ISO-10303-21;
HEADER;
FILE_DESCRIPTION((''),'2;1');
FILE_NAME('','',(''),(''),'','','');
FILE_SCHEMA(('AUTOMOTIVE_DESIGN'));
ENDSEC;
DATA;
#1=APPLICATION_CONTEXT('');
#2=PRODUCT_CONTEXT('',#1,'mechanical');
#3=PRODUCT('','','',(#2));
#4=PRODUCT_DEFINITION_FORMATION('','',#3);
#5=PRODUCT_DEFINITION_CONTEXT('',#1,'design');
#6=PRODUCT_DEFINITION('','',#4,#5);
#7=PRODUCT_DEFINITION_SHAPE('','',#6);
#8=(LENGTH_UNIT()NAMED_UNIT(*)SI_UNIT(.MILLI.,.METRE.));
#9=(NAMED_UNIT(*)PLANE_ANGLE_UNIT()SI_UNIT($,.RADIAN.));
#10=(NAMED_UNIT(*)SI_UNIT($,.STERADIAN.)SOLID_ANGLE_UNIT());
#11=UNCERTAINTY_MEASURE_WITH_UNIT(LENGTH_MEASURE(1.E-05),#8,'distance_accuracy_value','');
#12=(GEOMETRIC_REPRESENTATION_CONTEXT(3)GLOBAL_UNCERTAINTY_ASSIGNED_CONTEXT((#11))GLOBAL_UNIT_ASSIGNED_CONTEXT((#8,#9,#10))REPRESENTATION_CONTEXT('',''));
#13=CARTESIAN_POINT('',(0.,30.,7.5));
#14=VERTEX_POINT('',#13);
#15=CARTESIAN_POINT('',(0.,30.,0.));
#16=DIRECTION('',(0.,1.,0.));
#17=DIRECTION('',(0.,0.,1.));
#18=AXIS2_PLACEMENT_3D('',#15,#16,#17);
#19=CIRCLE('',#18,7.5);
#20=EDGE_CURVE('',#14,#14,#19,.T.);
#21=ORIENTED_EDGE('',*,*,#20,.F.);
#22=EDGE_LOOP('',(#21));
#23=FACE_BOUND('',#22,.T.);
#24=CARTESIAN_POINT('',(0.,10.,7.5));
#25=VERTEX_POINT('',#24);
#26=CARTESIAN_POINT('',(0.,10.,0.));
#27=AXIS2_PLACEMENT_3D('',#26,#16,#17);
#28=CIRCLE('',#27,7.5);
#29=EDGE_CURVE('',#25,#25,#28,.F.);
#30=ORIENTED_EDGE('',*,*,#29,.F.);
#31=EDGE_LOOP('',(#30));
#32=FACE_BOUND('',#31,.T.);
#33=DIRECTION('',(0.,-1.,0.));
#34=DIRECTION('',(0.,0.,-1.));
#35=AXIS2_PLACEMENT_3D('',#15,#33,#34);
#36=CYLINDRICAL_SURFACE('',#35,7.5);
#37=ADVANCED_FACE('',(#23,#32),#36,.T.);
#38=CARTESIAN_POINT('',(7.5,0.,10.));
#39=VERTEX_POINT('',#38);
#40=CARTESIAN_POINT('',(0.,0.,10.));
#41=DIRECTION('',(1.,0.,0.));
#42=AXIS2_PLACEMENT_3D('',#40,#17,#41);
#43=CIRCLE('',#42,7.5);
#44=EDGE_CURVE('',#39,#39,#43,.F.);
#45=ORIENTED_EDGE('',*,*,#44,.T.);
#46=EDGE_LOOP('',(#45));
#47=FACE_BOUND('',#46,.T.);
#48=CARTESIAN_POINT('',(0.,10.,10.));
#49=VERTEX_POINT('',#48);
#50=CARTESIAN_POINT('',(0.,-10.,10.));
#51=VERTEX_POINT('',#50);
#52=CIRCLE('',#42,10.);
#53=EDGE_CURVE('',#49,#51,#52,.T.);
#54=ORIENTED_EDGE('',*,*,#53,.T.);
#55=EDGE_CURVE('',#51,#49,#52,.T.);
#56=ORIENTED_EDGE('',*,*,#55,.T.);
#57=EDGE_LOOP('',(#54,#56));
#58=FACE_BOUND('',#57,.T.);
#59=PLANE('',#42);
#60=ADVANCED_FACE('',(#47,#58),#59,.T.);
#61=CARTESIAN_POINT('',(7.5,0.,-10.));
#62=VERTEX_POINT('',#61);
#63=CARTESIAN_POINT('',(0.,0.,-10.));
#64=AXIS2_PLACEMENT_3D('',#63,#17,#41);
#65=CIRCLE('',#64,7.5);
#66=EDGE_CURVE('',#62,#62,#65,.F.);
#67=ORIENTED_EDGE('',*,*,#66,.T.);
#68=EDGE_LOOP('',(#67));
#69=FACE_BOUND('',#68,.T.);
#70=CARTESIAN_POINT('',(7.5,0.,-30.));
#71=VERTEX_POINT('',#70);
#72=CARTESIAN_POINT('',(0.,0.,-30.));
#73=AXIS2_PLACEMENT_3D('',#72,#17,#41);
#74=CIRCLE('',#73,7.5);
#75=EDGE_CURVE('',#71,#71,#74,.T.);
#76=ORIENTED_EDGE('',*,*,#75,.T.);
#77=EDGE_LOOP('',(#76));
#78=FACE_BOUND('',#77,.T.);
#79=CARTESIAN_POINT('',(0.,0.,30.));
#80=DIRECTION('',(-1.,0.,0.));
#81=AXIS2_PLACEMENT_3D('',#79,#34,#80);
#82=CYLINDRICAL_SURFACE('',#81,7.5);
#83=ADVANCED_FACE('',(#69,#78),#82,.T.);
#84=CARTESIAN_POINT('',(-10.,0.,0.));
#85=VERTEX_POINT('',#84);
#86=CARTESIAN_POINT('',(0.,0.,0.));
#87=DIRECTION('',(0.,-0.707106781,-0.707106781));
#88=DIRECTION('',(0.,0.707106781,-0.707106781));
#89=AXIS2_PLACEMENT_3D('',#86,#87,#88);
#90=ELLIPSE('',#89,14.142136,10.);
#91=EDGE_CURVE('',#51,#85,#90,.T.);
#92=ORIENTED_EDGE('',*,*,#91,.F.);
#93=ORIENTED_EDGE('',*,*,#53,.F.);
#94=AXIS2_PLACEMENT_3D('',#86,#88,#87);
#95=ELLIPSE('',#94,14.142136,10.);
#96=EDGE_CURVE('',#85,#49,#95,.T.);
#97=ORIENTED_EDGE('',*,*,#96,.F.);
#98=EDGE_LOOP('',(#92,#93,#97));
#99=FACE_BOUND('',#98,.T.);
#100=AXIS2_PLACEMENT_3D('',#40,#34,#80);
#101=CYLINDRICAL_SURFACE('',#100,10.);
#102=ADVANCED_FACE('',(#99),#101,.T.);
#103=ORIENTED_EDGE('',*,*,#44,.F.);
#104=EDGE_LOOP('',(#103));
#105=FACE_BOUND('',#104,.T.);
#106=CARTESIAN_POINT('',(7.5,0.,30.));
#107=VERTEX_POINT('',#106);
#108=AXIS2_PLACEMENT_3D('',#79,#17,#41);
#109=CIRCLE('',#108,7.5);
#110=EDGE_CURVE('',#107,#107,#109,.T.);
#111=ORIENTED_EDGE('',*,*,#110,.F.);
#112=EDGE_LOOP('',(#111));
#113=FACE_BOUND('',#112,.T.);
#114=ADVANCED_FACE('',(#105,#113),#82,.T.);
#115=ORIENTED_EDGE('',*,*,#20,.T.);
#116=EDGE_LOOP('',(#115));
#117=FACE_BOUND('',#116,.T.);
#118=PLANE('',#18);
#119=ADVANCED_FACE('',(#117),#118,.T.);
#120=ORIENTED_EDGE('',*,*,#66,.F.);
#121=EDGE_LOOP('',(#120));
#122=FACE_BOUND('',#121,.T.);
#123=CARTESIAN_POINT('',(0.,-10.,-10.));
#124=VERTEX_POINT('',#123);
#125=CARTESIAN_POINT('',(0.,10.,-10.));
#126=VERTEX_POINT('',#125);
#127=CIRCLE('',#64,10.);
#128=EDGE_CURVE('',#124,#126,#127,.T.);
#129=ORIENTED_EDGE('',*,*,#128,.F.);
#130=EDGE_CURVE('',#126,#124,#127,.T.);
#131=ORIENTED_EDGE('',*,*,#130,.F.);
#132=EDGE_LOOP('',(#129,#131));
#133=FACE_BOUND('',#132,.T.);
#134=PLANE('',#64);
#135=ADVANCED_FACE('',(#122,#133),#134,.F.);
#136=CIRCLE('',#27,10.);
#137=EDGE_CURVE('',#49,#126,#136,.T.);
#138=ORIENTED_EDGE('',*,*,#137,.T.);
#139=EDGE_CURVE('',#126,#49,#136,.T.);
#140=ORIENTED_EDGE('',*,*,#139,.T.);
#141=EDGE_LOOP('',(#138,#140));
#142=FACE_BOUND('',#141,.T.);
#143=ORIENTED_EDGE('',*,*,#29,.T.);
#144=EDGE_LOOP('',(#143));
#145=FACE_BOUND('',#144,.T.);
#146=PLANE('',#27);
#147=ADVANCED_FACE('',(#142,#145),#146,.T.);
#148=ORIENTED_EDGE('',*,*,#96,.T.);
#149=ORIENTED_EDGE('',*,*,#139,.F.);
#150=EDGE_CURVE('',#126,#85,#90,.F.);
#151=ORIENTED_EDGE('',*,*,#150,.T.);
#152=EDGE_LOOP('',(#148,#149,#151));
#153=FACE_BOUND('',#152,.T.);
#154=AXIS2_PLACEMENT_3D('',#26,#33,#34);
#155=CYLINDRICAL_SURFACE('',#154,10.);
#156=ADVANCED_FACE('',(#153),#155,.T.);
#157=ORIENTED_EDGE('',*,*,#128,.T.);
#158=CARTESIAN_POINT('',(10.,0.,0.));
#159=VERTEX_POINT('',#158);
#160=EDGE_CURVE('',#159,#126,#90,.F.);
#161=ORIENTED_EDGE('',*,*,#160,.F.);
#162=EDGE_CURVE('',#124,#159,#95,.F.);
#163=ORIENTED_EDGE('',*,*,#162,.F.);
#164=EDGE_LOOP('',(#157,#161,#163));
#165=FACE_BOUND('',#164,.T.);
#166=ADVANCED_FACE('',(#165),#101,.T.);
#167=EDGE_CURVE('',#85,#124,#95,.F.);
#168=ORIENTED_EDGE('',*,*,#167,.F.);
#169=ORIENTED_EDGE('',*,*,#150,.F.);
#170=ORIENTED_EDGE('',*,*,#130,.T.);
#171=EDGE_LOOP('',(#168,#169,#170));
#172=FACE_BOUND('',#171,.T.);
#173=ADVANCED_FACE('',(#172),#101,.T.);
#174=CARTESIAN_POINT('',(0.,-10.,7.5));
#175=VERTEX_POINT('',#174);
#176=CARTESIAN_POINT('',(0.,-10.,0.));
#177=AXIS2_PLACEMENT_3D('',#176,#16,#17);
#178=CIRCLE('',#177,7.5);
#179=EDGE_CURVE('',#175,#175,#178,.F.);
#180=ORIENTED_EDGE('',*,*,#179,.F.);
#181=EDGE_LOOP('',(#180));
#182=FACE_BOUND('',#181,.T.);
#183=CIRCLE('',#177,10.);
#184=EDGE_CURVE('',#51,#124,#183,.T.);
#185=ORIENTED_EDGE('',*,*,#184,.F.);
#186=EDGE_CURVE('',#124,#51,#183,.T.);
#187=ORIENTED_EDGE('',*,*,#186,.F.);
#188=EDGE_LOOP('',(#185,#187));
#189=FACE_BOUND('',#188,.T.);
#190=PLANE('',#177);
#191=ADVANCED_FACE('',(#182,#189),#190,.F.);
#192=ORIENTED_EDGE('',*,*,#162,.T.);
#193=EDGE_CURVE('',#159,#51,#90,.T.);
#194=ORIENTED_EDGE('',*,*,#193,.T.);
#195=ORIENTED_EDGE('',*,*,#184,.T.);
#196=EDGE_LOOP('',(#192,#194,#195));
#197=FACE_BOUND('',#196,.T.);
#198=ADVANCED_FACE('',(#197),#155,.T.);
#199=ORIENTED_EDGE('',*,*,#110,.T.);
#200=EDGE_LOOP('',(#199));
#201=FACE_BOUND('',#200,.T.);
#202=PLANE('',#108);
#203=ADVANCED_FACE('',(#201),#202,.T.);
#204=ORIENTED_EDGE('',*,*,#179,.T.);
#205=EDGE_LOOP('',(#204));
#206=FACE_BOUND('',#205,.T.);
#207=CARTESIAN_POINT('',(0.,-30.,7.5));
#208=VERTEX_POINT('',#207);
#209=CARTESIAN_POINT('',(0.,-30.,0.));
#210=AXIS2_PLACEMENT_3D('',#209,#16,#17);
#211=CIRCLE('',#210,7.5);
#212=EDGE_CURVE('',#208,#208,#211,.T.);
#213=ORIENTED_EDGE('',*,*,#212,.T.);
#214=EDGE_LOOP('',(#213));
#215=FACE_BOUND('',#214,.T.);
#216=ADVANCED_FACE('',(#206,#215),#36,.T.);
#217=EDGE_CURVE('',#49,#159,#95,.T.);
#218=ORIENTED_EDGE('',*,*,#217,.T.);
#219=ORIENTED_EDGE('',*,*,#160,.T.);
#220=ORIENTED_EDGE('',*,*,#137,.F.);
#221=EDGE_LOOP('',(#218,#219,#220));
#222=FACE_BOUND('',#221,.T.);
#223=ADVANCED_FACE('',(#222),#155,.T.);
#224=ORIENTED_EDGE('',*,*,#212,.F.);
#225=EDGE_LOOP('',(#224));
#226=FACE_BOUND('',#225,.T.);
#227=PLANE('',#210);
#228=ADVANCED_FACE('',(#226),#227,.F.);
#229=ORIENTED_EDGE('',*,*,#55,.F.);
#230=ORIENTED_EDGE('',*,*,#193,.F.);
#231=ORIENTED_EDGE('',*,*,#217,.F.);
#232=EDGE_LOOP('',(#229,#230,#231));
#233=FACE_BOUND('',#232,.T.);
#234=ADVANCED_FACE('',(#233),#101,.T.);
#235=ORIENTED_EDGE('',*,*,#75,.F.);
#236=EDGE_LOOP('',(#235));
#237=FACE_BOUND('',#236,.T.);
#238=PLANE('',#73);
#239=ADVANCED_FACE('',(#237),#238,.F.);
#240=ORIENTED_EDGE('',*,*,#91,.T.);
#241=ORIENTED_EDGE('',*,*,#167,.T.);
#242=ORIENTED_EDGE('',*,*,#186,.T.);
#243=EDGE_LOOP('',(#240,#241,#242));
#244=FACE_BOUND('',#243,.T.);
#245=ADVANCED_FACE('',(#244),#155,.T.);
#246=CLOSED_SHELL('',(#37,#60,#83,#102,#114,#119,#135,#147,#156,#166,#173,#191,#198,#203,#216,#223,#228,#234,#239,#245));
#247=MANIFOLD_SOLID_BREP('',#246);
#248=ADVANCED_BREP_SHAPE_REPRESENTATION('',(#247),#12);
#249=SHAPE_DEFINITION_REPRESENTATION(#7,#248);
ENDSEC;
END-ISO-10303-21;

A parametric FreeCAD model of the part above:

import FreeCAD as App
import Part
import Sketcher
from FreeCAD import Vector
Q = App.Units.Quantity

doc = App.newDocument("Part")
body = doc.addObject("PartDesign::Body", "Body")

# Sketch on XY plane
sketch1 = body.newObject("Sketcher::SketchObject", "Sketch")
sketch1.AttachmentSupport = (doc.getObject("XY_Plane"), [""])
sketch1.MapMode = "FlatFace"
sketch1.addGeometry(Part.Circle(Vector(0, 0, 0), Vector(0, 0, 1), 10), False)
sketch1.addConstraint([
    Sketcher.Constraint("Coincident", 0, 3, -1, 1),
    Sketcher.Constraint("Diameter", 0, Q("20 mm")),
])
pad1 = body.newObject("PartDesign::Pad", "Pad")
pad1.Profile = sketch1
pad1.Length = 20
pad1.Midplane = True

# Sketch on XY plane
sketch2 = body.newObject("Sketcher::SketchObject", "Sketch001")
sketch2.AttachmentSupport = (doc.getObject("XY_Plane"), [""])
sketch2.MapMode = "FlatFace"
sketch2.addGeometry(Part.Circle(Vector(0, 0, 0), Vector(0, 0, 1), 8), False)
sketch2.addConstraint([
    Sketcher.Constraint("Coincident", 0, 3, -1, 1),
    Sketcher.Constraint("Diameter", 0, Q("15 mm")),
])
pad2 = body.newObject("PartDesign::Pad", "Pad001")
pad2.Profile = sketch2
pad2.Length = 60
pad2.Midplane = True

# Sketch on XZ plane
sketch3 = body.newObject("Sketcher::SketchObject", "Sketch002")
sketch3.AttachmentSupport = (doc.getObject("XZ_Plane"), [""])
sketch3.MapMode = "FlatFace"
sketch3.addGeometry(Part.Circle(Vector(0, 0, 0), Vector(0, 0, 1), 10), False)
sketch3.addConstraint([
    Sketcher.Constraint("Coincident", 0, 3, -1, 1),
    Sketcher.Constraint("Diameter", 0, Q("20 mm")),
])
pad3 = body.newObject("PartDesign::Pad", "Pad002")
pad3.Profile = sketch3
pad3.Length = 20
pad3.Midplane = True

# Sketch on XZ plane
sketch4 = body.newObject("Sketcher::SketchObject", "Sketch003")
sketch4.AttachmentSupport = (doc.getObject("XZ_Plane"), [""])
sketch4.MapMode = "FlatFace"
sketch4.addGeometry(Part.Circle(Vector(0, 0, 0), Vector(0, 0, 1), 8), False)
sketch4.addConstraint([
    Sketcher.Constraint("Coincident", 0, 3, -1, 1),
    Sketcher.Constraint("Diameter", 0, Q("15 mm")),
])
pad4 = body.newObject("PartDesign::Pad", "Pad003")
pad4.Profile = sketch4
pad4.Length = 60
pad4.Midplane = True

doc.recompute()
